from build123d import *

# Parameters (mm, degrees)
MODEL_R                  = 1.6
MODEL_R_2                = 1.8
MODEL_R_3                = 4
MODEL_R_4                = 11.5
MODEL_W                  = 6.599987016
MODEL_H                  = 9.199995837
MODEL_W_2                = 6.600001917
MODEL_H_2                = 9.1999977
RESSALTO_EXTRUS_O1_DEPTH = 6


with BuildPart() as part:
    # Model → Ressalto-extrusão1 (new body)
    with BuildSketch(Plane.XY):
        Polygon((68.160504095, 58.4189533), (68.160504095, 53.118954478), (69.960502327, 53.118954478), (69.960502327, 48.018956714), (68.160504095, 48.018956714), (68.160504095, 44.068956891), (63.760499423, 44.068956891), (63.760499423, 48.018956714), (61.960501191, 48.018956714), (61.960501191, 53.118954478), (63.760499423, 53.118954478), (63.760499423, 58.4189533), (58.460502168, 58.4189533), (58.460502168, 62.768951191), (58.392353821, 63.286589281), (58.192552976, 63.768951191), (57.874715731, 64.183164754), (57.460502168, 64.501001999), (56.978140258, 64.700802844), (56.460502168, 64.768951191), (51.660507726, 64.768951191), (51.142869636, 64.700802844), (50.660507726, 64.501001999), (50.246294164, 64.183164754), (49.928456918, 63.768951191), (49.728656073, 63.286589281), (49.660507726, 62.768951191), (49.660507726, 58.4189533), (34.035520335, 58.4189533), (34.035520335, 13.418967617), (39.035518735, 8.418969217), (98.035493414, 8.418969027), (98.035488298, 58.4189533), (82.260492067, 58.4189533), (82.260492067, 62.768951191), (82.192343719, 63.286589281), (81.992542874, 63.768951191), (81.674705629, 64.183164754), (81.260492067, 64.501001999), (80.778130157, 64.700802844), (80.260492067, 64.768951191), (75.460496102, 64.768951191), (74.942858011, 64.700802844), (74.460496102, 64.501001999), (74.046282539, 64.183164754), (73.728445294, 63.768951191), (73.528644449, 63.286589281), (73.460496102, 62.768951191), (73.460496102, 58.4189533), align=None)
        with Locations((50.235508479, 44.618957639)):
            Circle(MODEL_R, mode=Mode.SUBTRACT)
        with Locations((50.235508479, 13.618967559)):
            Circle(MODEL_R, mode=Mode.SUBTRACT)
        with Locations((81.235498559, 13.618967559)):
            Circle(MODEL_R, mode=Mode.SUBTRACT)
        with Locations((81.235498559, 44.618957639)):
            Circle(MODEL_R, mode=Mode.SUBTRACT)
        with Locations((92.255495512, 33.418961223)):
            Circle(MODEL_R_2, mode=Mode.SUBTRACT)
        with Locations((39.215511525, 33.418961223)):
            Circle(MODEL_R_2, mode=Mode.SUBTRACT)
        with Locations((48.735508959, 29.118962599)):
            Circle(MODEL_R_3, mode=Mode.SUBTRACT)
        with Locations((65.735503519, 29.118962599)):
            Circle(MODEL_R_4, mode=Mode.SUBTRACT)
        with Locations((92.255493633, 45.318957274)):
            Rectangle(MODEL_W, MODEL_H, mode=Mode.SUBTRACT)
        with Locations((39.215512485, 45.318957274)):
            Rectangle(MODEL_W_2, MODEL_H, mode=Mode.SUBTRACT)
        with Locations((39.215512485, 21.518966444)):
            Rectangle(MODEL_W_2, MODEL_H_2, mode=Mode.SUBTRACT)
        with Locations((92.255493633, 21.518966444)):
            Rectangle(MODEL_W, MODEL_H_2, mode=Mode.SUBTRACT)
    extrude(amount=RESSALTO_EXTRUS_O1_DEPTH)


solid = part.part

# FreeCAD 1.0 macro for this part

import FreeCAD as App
import Part
import Sketcher
from FreeCAD import Vector
Q = App.Units.Quantity

doc = App.newDocument("Part")
params = doc.addObject("Spreadsheet::Sheet", "Params")
for row, (alias, value) in enumerate([
    ("sketch1_diameter", "8 mm"),
    ("sketch1_diameter2", "23 mm"),
    ("sketch1_diameter3", "3.2 mm"),
    ("sketch1_diameter4", "3.6 mm"),
    ("sketch1_width", "1.799998 mm"),
    ("pad1_length", "6 mm"),
], start=1):
    params.set(f"A{row}", alias)
    params.set(f"B{row}", "=" + value)
    params.setAlias(f"B{row}", alias)

body = doc.addObject("PartDesign::Body", "Body")

# Sketch on XY plane
sketch1 = body.newObject("Sketcher::SketchObject", "Sketch")
sketch1.AttachmentSupport = (doc.getObject("XY_Plane"), [""])
sketch1.MapMode = "FlatFace"
sketch1.addGeometry([
    Part.LineSegment(Vector(68.160504, 58.418953, 0), Vector(68.160504, 53.118954, 0)),  # 0
    Part.LineSegment(Vector(68.160504, 53.118954, 0), Vector(69.960502, 53.118954, 0)),  # 1
    Part.LineSegment(Vector(69.960502, 53.118954, 0), Vector(69.960502, 48.018957, 0)),  # 2
    Part.LineSegment(Vector(69.960502, 48.018957, 0), Vector(68.160504, 48.018957, 0)),  # 3
    Part.LineSegment(Vector(68.160504, 48.018957, 0), Vector(68.160504, 44.068957, 0)),  # 4
    Part.LineSegment(Vector(68.160504, 44.068957, 0), Vector(63.760499, 44.068957, 0)),  # 5
    Part.LineSegment(Vector(63.760499, 44.068957, 0), Vector(63.760499, 48.018957, 0)),  # 6
    Part.LineSegment(Vector(63.760499, 48.018957, 0), Vector(61.960501, 48.018957, 0)),  # 7
    Part.LineSegment(Vector(61.960501, 48.018957, 0), Vector(61.960501, 53.118954, 0)),  # 8
    Part.LineSegment(Vector(61.960501, 53.118954, 0), Vector(63.760499, 53.118954, 0)),  # 9
    Part.LineSegment(Vector(63.760499, 53.118954, 0), Vector(63.760499, 58.418953, 0)),  # 10
    Part.LineSegment(Vector(63.760499, 58.418953, 0), Vector(58.460502, 58.418953, 0)),  # 11
    Part.LineSegment(Vector(58.460502, 58.418953, 0), Vector(58.460502, 62.768951, 0)),  # 12
    Part.LineSegment(Vector(58.460502, 62.768951, 0), Vector(58.392354, 63.286589, 0)),  # 13
    Part.LineSegment(Vector(58.392354, 63.286589, 0), Vector(58.192553, 63.768951, 0)),  # 14
    Part.LineSegment(Vector(58.192553, 63.768951, 0), Vector(57.874716, 64.183165, 0)),  # 15
    Part.LineSegment(Vector(57.874716, 64.183165, 0), Vector(57.460502, 64.501002, 0)),  # 16
    Part.LineSegment(Vector(57.460502, 64.501002, 0), Vector(56.97814, 64.700803, 0)),  # 17
    Part.LineSegment(Vector(56.97814, 64.700803, 0), Vector(56.460502, 64.768951, 0)),  # 18
    Part.LineSegment(Vector(56.460502, 64.768951, 0), Vector(51.660508, 64.768951, 0)),  # 19
    Part.LineSegment(Vector(51.660508, 64.768951, 0), Vector(51.14287, 64.700803, 0)),  # 20
    Part.LineSegment(Vector(51.14287, 64.700803, 0), Vector(50.660508, 64.501002, 0)),  # 21
    Part.LineSegment(Vector(50.660508, 64.501002, 0), Vector(50.246294, 64.183165, 0)),  # 22
    Part.LineSegment(Vector(50.246294, 64.183165, 0), Vector(49.928457, 63.768951, 0)),  # 23
    Part.LineSegment(Vector(49.928457, 63.768951, 0), Vector(49.728656, 63.286589, 0)),  # 24
    Part.LineSegment(Vector(49.728656, 63.286589, 0), Vector(49.660508, 62.768951, 0)),  # 25
    Part.LineSegment(Vector(49.660508, 62.768951, 0), Vector(49.660508, 58.418953, 0)),  # 26
    Part.LineSegment(Vector(49.660508, 58.418953, 0), Vector(34.03552, 58.418953, 0)),  # 27
    Part.LineSegment(Vector(34.03552, 58.418953, 0), Vector(34.03552, 13.418968, 0)),  # 28
    Part.LineSegment(Vector(34.03552, 13.418968, 0), Vector(39.035519, 8.418969, 0)),  # 29
    Part.LineSegment(Vector(39.035519, 8.418969, 0), Vector(98.035493, 8.418969, 0)),  # 30
    Part.LineSegment(Vector(98.035493, 8.418969, 0), Vector(98.035488, 58.418953, 0)),  # 31
    Part.LineSegment(Vector(98.035488, 58.418953, 0), Vector(82.260492, 58.418953, 0)),  # 32
    Part.LineSegment(Vector(82.260492, 58.418953, 0), Vector(82.260492, 62.768951, 0)),  # 33
    Part.LineSegment(Vector(82.260492, 62.768951, 0), Vector(82.192344, 63.286589, 0)),  # 34
    Part.LineSegment(Vector(82.192344, 63.286589, 0), Vector(81.992543, 63.768951, 0)),  # 35
    Part.LineSegment(Vector(81.992543, 63.768951, 0), Vector(81.674706, 64.183165, 0)),  # 36
    Part.LineSegment(Vector(81.674706, 64.183165, 0), Vector(81.260492, 64.501002, 0)),  # 37
    Part.LineSegment(Vector(81.260492, 64.501002, 0), Vector(80.77813, 64.700803, 0)),  # 38
    Part.LineSegment(Vector(80.77813, 64.700803, 0), Vector(80.260492, 64.768951, 0)),  # 39
    Part.LineSegment(Vector(80.260492, 64.768951, 0), Vector(75.460496, 64.768951, 0)),  # 40
    Part.LineSegment(Vector(75.460496, 64.768951, 0), Vector(74.942858, 64.700803, 0)),  # 41
    Part.LineSegment(Vector(74.942858, 64.700803, 0), Vector(74.460496, 64.501002, 0)),  # 42
    Part.LineSegment(Vector(74.460496, 64.501002, 0), Vector(74.046283, 64.183165, 0)),  # 43
    Part.LineSegment(Vector(74.046283, 64.183165, 0), Vector(73.728445, 63.768951, 0)),  # 44
    Part.LineSegment(Vector(73.728445, 63.768951, 0), Vector(73.528644, 63.286589, 0)),  # 45
    Part.LineSegment(Vector(73.528644, 63.286589, 0), Vector(73.460496, 62.768951, 0)),  # 46
    Part.LineSegment(Vector(73.460496, 62.768951, 0), Vector(73.460496, 58.418953, 0)),  # 47
    Part.LineSegment(Vector(73.460496, 58.418953, 0), Vector(68.160504, 58.418953, 0)),  # 48
    Part.Circle(Vector(50.235508, 13.618968, 0), Vector(0, 0, 1), 1.6),  # 49
    Part.LineSegment(Vector(42.515513, 16.918968, 0), Vector(35.915512, 16.918968, 0)),  # 50
    Part.LineSegment(Vector(35.915512, 16.918968, 0), Vector(35.915512, 26.118965, 0)),  # 51
    Part.LineSegment(Vector(35.915512, 26.118965, 0), Vector(42.515513, 26.118965, 0)),  # 52
    Part.LineSegment(Vector(42.515513, 26.118965, 0), Vector(42.515513, 16.918968, 0)),  # 53
    Part.Circle(Vector(48.735509, 29.118963, 0), Vector(0, 0, 1), 4),  # 54
    Part.Circle(Vector(81.235499, 13.618968, 0), Vector(0, 0, 1), 1.6),  # 55
    Part.Circle(Vector(65.735504, 29.118963, 0), Vector(0, 0, 1), 11.5),  # 56
    Part.LineSegment(Vector(95.555487, 16.918968, 0), Vector(88.9555, 16.918968, 0)),  # 57
    Part.LineSegment(Vector(88.9555, 16.918968, 0), Vector(88.9555, 26.118965, 0)),  # 58
    Part.LineSegment(Vector(88.9555, 26.118965, 0), Vector(95.555487, 26.118965, 0)),  # 59
    Part.LineSegment(Vector(95.555487, 26.118965, 0), Vector(95.555487, 16.918968, 0)),  # 60
    Part.Circle(Vector(39.215512, 33.418961, 0), Vector(0, 0, 1), 1.8),  # 61
    Part.Circle(Vector(50.235508, 44.618958, 0), Vector(0, 0, 1), 1.6),  # 62
    Part.LineSegment(Vector(42.515513, 40.718959, 0), Vector(35.915512, 40.718959, 0)),  # 63
    Part.LineSegment(Vector(35.915512, 40.718959, 0), Vector(35.915512, 49.918955, 0)),  # 64
    Part.LineSegment(Vector(35.915512, 49.918955, 0), Vector(42.515513, 49.918955, 0)),  # 65
    Part.LineSegment(Vector(42.515513, 49.918955, 0), Vector(42.515513, 40.718959, 0)),  # 66
    Part.Circle(Vector(92.255496, 33.418961, 0), Vector(0, 0, 1), 1.8),  # 67
    Part.Circle(Vector(81.235499, 44.618958, 0), Vector(0, 0, 1), 1.6),  # 68
    Part.LineSegment(Vector(95.555487, 40.718959, 0), Vector(88.9555, 40.718959, 0)),  # 69
    Part.LineSegment(Vector(88.9555, 40.718959, 0), Vector(88.9555, 49.918955, 0)),  # 70
    Part.LineSegment(Vector(88.9555, 49.918955, 0), Vector(95.555487, 49.918955, 0)),  # 71
    Part.LineSegment(Vector(95.555487, 49.918955, 0), Vector(95.555487, 40.718959, 0)),  # 72
], False)
sketch1.addConstraint([
    Sketcher.Constraint("Coincident", 0, 2, 1, 1),
    Sketcher.Constraint("Coincident", 1, 2, 2, 1),
    Sketcher.Constraint("Coincident", 2, 2, 3, 1),
    Sketcher.Constraint("Coincident", 3, 2, 4, 1),
    Sketcher.Constraint("Coincident", 4, 2, 5, 1),
    Sketcher.Constraint("Coincident", 5, 2, 6, 1),
    Sketcher.Constraint("Coincident", 6, 2, 7, 1),
    Sketcher.Constraint("Coincident", 7, 2, 8, 1),
    Sketcher.Constraint("Coincident", 8, 2, 9, 1),
    Sketcher.Constraint("Coincident", 9, 2, 10, 1),
    Sketcher.Constraint("Coincident", 10, 2, 11, 1),
    Sketcher.Constraint("Coincident", 11, 2, 12, 1),
    Sketcher.Constraint("Coincident", 12, 2, 13, 1),
    Sketcher.Constraint("Coincident", 13, 2, 14, 1),
    Sketcher.Constraint("Coincident", 14, 2, 15, 1),
    Sketcher.Constraint("Coincident", 15, 2, 16, 1),
    Sketcher.Constraint("Coincident", 16, 2, 17, 1),
    Sketcher.Constraint("Coincident", 17, 2, 18, 1),
    Sketcher.Constraint("Coincident", 18, 2, 19, 1),
    Sketcher.Constraint("Coincident", 19, 2, 20, 1),
    Sketcher.Constraint("Coincident", 20, 2, 21, 1),
    Sketcher.Constraint("Coincident", 21, 2, 22, 1),
    Sketcher.Constraint("Coincident", 22, 2, 23, 1),
    Sketcher.Constraint("Coincident", 23, 2, 24, 1),
    Sketcher.Constraint("Coincident", 24, 2, 25, 1),
    Sketcher.Constraint("Coincident", 25, 2, 26, 1),
    Sketcher.Constraint("Coincident", 26, 2, 27, 1),
    Sketcher.Constraint("Coincident", 27, 2, 28, 1),
    Sketcher.Constraint("Coincident", 28, 2, 29, 1),
    Sketcher.Constraint("Coincident", 29, 2, 30, 1),
    Sketcher.Constraint("Coincident", 30, 2, 31, 1),
    Sketcher.Constraint("Coincident", 31, 2, 32, 1),
    Sketcher.Constraint("Coincident", 32, 2, 33, 1),
    Sketcher.Constraint("Coincident", 33, 2, 34, 1),
    Sketcher.Constraint("Coincident", 34, 2, 35, 1),
    Sketcher.Constraint("Coincident", 35, 2, 36, 1),
    Sketcher.Constraint("Coincident", 36, 2, 37, 1),
    Sketcher.Constraint("Coincident", 37, 2, 38, 1),
    Sketcher.Constraint("Coincident", 38, 2, 39, 1),
    Sketcher.Constraint("Coincident", 39, 2, 40, 1),
    Sketcher.Constraint("Coincident", 40, 2, 41, 1),
    Sketcher.Constraint("Coincident", 41, 2, 42, 1),
    Sketcher.Constraint("Coincident", 42, 2, 43, 1),
    Sketcher.Constraint("Coincident", 43, 2, 44, 1),
    Sketcher.Constraint("Coincident", 44, 2, 45, 1),
    Sketcher.Constraint("Coincident", 45, 2, 46, 1),
    Sketcher.Constraint("Coincident", 46, 2, 47, 1),
    Sketcher.Constraint("Coincident", 47, 2, 48, 1),
    Sketcher.Constraint("Coincident", 48, 2, 0, 1),
    Sketcher.Constraint("Coincident", 50, 2, 51, 1),
    Sketcher.Constraint("Coincident", 51, 2, 52, 1),
    Sketcher.Constraint("Coincident", 52, 2, 53, 1),
    Sketcher.Constraint("Coincident", 53, 2, 50, 1),
    Sketcher.Constraint("Coincident", 57, 2, 58, 1),
    Sketcher.Constraint("Coincident", 58, 2, 59, 1),
    Sketcher.Constraint("Coincident", 59, 2, 60, 1),
    Sketcher.Constraint("Coincident", 60, 2, 57, 1),
    Sketcher.Constraint("Coincident", 63, 2, 64, 1),
    Sketcher.Constraint("Coincident", 64, 2, 65, 1),
    Sketcher.Constraint("Coincident", 65, 2, 66, 1),
    Sketcher.Constraint("Coincident", 66, 2, 63, 1),
    Sketcher.Constraint("Coincident", 69, 2, 70, 1),
    Sketcher.Constraint("Coincident", 70, 2, 71, 1),
    Sketcher.Constraint("Coincident", 71, 2, 72, 1),
    Sketcher.Constraint("Coincident", 72, 2, 69, 1),
    Sketcher.Constraint("Vertical", 0),
    Sketcher.Constraint("Horizontal", 1),
    Sketcher.Constraint("Vertical", 2),
    Sketcher.Constraint("Horizontal", 3),
    Sketcher.Constraint("Vertical", 4),
    Sketcher.Constraint("Horizontal", 5),
    Sketcher.Constraint("Vertical", 6),
    Sketcher.Constraint("Horizontal", 7),
    Sketcher.Constraint("Vertical", 8),
    Sketcher.Constraint("Horizontal", 9),
    Sketcher.Constraint("Vertical", 10),
    Sketcher.Constraint("Horizontal", 11),
    Sketcher.Constraint("Vertical", 12),
    Sketcher.Constraint("Horizontal", 19),
    Sketcher.Constraint("Vertical", 26),
    Sketcher.Constraint("Horizontal", 27),
    Sketcher.Constraint("Vertical", 28),
    Sketcher.Constraint("Horizontal", 30),
    Sketcher.Constraint("Horizontal", 32),
    Sketcher.Constraint("Vertical", 33),
    Sketcher.Constraint("Horizontal", 40),
    Sketcher.Constraint("Vertical", 47),
    Sketcher.Constraint("Horizontal", 48),
    Sketcher.Constraint("Horizontal", 50),
    Sketcher.Constraint("Vertical", 51),
    Sketcher.Constraint("Horizontal", 52),
    Sketcher.Constraint("Vertical", 53),
    Sketcher.Constraint("Horizontal", 57),
    Sketcher.Constraint("Vertical", 58),
    Sketcher.Constraint("Horizontal", 59),
    Sketcher.Constraint("Vertical", 60),
    Sketcher.Constraint("Horizontal", 63),
    Sketcher.Constraint("Vertical", 64),
    Sketcher.Constraint("Horizontal", 65),
    Sketcher.Constraint("Vertical", 66),
    Sketcher.Constraint("Horizontal", 69),
    Sketcher.Constraint("Vertical", 70),
    Sketcher.Constraint("Horizontal", 71),
    Sketcher.Constraint("Vertical", 72),
    Sketcher.Constraint("Equal", 49, 55),
    Sketcher.Constraint("Equal", 55, 62),
    Sketcher.Constraint("Equal", 61, 67),
    Sketcher.Constraint("Equal", 62, 68),
    Sketcher.Constraint("Perpendicular", 13, 20),
    Sketcher.Constraint("Perpendicular", 14, 21),
    Sketcher.Constraint("Perpendicular", 15, 22),
    Sketcher.Constraint("Perpendicular", 16, 23),
    Sketcher.Constraint("Perpendicular", 17, 24),
    Sketcher.Constraint("Perpendicular", 18, 25),
    Sketcher.Constraint("Perpendicular", 20, 34),
    Sketcher.Constraint("Perpendicular", 21, 35),
    Sketcher.Constraint("Perpendicular", 22, 36),
    Sketcher.Constraint("Perpendicular", 23, 37),
    Sketcher.Constraint("Perpendicular", 24, 38),
    Sketcher.Constraint("Perpendicular", 25, 39),
    Sketcher.Constraint("Perpendicular", 34, 41),
    Sketcher.Constraint("Perpendicular", 35, 42),
    Sketcher.Constraint("Perpendicular", 36, 43),
    Sketcher.Constraint("Perpendicular", 37, 44),
    Sketcher.Constraint("Perpendicular", 38, 45),
    Sketcher.Constraint("Perpendicular", 39, 46),
    Sketcher.Constraint("Horizontal", 49, 3, 55, 3),
    Sketcher.Constraint("Horizontal", 54, 3, 56, 3),
    Sketcher.Constraint("Horizontal", 61, 3, 67, 3),
    Sketcher.Constraint("Horizontal", 62, 3, 68, 3),
    Sketcher.Constraint("Horizontal", 3, 2, 6, 2),
    Sketcher.Constraint("Horizontal", 1, 2, 8, 2),
    Sketcher.Constraint("Horizontal", 17, 2, 20, 2),
    Sketcher.Constraint("Horizontal", 16, 2, 21, 2),
    Sketcher.Constraint("Horizontal", 15, 2, 22, 2),
    Sketcher.Constraint("Horizontal", 14, 2, 23, 2),
    Sketcher.Constraint("Horizontal", 13, 2, 24, 2),
    Sketcher.Constraint("Horizontal", 12, 2, 25, 2),
    Sketcher.Constraint("Horizontal", 11, 2, 26, 2),
    Sketcher.Constraint("Horizontal", 27, 2, 31, 2),
    Sketcher.Constraint("Horizontal", 25, 2, 33, 2),
    Sketcher.Constraint("Horizontal", 24, 2, 34, 2),
    Sketcher.Constraint("Horizontal", 23, 2, 35, 2),
    Sketcher.Constraint("Horizontal", 22, 2, 36, 2),
    Sketcher.Constraint("Horizontal", 21, 2, 37, 2),
    Sketcher.Constraint("Horizontal", 20, 2, 38, 2),
    Sketcher.Constraint("Horizontal", 19, 2, 39, 2),
    Sketcher.Constraint("Horizontal", 38, 2, 41, 2),
    Sketcher.Constraint("Horizontal", 37, 2, 42, 2),
    Sketcher.Constraint("Horizontal", 36, 2, 43, 2),
    Sketcher.Constraint("Horizontal", 35, 2, 44, 2),
    Sketcher.Constraint("Horizontal", 34, 2, 45, 2),
    Sketcher.Constraint("Horizontal", 33, 2, 46, 2),
    Sketcher.Constraint("Horizontal", 32, 2, 47, 2),
    Sketcher.Constraint("Horizontal", 53, 2, 57, 2),
    Sketcher.Constraint("Horizontal", 52, 2, 58, 2),
    Sketcher.Constraint("Horizontal", 66, 2, 69, 2),
    Sketcher.Constraint("Horizontal", 65, 2, 70, 2),
    Sketcher.Constraint("Vertical", 49, 3, 62, 3),
    Sketcher.Constraint("Vertical", 55, 3, 68, 3),
    Sketcher.Constraint("Vertical", 0, 2, 3, 2),
    Sketcher.Constraint("Vertical", 6, 2, 9, 2),
    Sketcher.Constraint("Vertical", 51, 2, 63, 2),
    Sketcher.Constraint("Vertical", 53, 2, 65, 2),
    Sketcher.Constraint("Vertical", 58, 2, 69, 2),
    Sketcher.Constraint("Vertical", 60, 2, 71, 2),
    Sketcher.Constraint("Equal", 3, 7),
    Sketcher.Constraint("Equal", 19, 40),
    Sketcher.Constraint("Equal", 11, 0),
    Sketcher.Constraint("Equal", 60, 64),
    Sketcher.Constraint("Equal", 13, 14),
    Sketcher.Constraint("Equal", 14, 15),
    Sketcher.Constraint("Equal", 15, 16),
    Sketcher.Constraint("Equal", 16, 17),
    Sketcher.Constraint("Equal", 17, 18),
    Sketcher.Constraint("Equal", 18, 20),
    Sketcher.Constraint("Equal", 20, 21),
    Sketcher.Constraint("Equal", 21, 22),
    Sketcher.Constraint("Diameter", 54, 8.0),
    Sketcher.Constraint("Diameter", 56, 23.0),
    Sketcher.Constraint("Diameter", 49, 3.2),
    Sketcher.Constraint("Diameter", 61, 3.6),
    Sketcher.Constraint("Angle", 29, Q("-45 deg")),
    Sketcher.Constraint("Angle", 31, Q("90.000006 deg")),
    Sketcher.Constraint("DistanceX", 1, 1, 1, 2, 1.799998),
    Sketcher.Constraint("DistanceX", 50, 2, 50, 1, 6.600002),
    Sketcher.Constraint("DistanceY", 0, 2, 0, 1, 5.299999),
    Sketcher.Constraint("Angle", 13, Q("97.5 deg")),
    Sketcher.Constraint("Angle", 14, Q("112.5 deg")),
    Sketcher.Constraint("Angle", 15, Q("127.5 deg")),
    Sketcher.Constraint("DistanceY", 4, 2, 4, 1, 3.95),
    Sketcher.Constraint("DistanceY", -1, 1, 16, 2, 64.501002),
    Sketcher.Constraint("DistanceX", -1, 1, 55, 3, 81.235499),
    Sketcher.Constraint("DistanceX", -1, 1, 5, 2, 63.760499),
    Sketcher.Constraint("DistanceX", -1, 1, 57, 2, 88.9555),
    Sketcher.Constraint("DistanceX", 5, 2, 5, 1, 4.400005),
    Sketcher.Constraint("DistanceX", 19, 2, 19, 1, 4.799994),
    Sketcher.Constraint("DistanceX", 27, 2, 27, 1, 15.624987),
    Sketcher.Constraint("DistanceX", 30, 1, 30, 2, 58.999975),
    Sketcher.Constraint("DistanceX", 32, 2, 32, 1, 15.774996),
    Sketcher.Constraint("DistanceX", 48, 2, 48, 1, 5.299992),
    Sketcher.Constraint("DistanceX", 57, 2, 57, 1, 6.599987),
    Sketcher.Constraint("DistanceY", 2, 2, 2, 1, 5.099998),
    Sketcher.Constraint("DistanceY", 12, 1, 12, 2, 4.349998),
    Sketcher.Constraint("DistanceY", 28, 2, 28, 1, 44.999986),
    Sketcher.Constraint("DistanceY", 51, 1, 51, 2, 9.199998),
    Sketcher.Constraint("DistanceX", -1, 1, 49, 3, 50.235508),
    Sketcher.Constraint("DistanceX", -1, 1, 54, 3, 48.735509),
    Sketcher.Constraint("DistanceX", -1, 1, 61, 3, 39.215512),
    Sketcher.Constraint("DistanceY", -1, 1, 61, 3, 33.418961),
    Sketcher.Constraint("DistanceY", -1, 1, 12, 2, 62.768951),
    Sketcher.Constraint("DistanceX", -1, 1, 50, 2, 35.915512),
    Sketcher.Constraint("DistanceY", -1, 1, 63, 2, 40.718959),
    Sketcher.Constraint("DistanceY", -1, 1, 49, 3, 13.618968),
    Sketcher.Constraint("DistanceY", -1, 1, 54, 3, 29.118963),
    Sketcher.Constraint("DistanceX", -1, 1, 56, 3, 65.735504),
    Sketcher.Constraint("DistanceY", -1, 1, 62, 3, 44.618958),
    Sketcher.Constraint("DistanceX", -1, 1, 67, 3, 92.255496),
    Sketcher.Constraint("DistanceY", -1, 1, 50, 2, 16.918968),
])
sketch1.setExpression("Constraints[178]", "Params.sketch1_diameter")
sketch1.setExpression("Constraints[179]", "Params.sketch1_diameter2")
sketch1.setExpression("Constraints[180]", "Params.sketch1_diameter3")
sketch1.setExpression("Constraints[181]", "Params.sketch1_diameter4")
sketch1.setExpression("Constraints[184]", "Params.sketch1_width")
pad1 = body.newObject("PartDesign::Pad", "Pad")
pad1.Profile = sketch1
pad1.setExpression("Length", "Params.pad1_length")

doc.recompute()
